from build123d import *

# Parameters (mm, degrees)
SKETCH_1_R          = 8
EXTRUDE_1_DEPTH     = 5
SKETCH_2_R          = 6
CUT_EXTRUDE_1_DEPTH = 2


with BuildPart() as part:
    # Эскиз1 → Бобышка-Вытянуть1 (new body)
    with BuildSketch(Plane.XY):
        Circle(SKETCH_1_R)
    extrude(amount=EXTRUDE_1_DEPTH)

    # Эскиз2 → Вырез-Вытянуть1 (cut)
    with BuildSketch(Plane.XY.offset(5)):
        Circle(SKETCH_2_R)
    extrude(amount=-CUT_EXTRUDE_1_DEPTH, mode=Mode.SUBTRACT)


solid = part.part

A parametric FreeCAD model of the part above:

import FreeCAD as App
import Part
import Sketcher

V = App.Vector
Q = App.Units.Quantity

doc = App.newDocument("Part")
body = doc.addObject("PartDesign::Body", "Body")

# Sketch on XY plane
sketch1 = body.newObject("Sketcher::SketchObject", "Sketch")
sketch1.AttachmentSupport = (doc.getObject("XY_Plane"), [""])
sketch1.MapMode = "FlatFace"
sketch1.addGeometry(Part.Circle(V(0, 0, 0), V(0, 0, 1), 8), False)
sketch1.addConstraint(Sketcher.Constraint("Coincident", 0, 3, -1, 1))
sketch1.addConstraint(Sketcher.Constraint("Diameter", 0, Q("16 mm")))
pad1 = body.newObject("PartDesign::Pad", "Pad")
pad1.Profile = sketch1
pad1.Length = 5

# Sketch on XY plane
sketch2 = body.newObject("Sketcher::SketchObject", "Sketch001")
sketch2.AttachmentSupport = (doc.getObject("XY_Plane"), [""])
sketch2.MapMode = "FlatFace"
sketch2.AttachmentOffset = App.Placement(V(0, 0, 5), App.Rotation())
sketch2.addGeometry(Part.Circle(V(0, 0, 0), V(0, 0, 1), 6), False)
sketch2.addConstraint(Sketcher.Constraint("Coincident", 0, 3, -1, 1))
sketch2.addConstraint(Sketcher.Constraint("Diameter", 0, Q("12 mm")))
pocket1 = body.newObject("PartDesign::Pocket", "Pocket")
pocket1.Profile = sketch2
pocket1.Length = 2

doc.recompute()
